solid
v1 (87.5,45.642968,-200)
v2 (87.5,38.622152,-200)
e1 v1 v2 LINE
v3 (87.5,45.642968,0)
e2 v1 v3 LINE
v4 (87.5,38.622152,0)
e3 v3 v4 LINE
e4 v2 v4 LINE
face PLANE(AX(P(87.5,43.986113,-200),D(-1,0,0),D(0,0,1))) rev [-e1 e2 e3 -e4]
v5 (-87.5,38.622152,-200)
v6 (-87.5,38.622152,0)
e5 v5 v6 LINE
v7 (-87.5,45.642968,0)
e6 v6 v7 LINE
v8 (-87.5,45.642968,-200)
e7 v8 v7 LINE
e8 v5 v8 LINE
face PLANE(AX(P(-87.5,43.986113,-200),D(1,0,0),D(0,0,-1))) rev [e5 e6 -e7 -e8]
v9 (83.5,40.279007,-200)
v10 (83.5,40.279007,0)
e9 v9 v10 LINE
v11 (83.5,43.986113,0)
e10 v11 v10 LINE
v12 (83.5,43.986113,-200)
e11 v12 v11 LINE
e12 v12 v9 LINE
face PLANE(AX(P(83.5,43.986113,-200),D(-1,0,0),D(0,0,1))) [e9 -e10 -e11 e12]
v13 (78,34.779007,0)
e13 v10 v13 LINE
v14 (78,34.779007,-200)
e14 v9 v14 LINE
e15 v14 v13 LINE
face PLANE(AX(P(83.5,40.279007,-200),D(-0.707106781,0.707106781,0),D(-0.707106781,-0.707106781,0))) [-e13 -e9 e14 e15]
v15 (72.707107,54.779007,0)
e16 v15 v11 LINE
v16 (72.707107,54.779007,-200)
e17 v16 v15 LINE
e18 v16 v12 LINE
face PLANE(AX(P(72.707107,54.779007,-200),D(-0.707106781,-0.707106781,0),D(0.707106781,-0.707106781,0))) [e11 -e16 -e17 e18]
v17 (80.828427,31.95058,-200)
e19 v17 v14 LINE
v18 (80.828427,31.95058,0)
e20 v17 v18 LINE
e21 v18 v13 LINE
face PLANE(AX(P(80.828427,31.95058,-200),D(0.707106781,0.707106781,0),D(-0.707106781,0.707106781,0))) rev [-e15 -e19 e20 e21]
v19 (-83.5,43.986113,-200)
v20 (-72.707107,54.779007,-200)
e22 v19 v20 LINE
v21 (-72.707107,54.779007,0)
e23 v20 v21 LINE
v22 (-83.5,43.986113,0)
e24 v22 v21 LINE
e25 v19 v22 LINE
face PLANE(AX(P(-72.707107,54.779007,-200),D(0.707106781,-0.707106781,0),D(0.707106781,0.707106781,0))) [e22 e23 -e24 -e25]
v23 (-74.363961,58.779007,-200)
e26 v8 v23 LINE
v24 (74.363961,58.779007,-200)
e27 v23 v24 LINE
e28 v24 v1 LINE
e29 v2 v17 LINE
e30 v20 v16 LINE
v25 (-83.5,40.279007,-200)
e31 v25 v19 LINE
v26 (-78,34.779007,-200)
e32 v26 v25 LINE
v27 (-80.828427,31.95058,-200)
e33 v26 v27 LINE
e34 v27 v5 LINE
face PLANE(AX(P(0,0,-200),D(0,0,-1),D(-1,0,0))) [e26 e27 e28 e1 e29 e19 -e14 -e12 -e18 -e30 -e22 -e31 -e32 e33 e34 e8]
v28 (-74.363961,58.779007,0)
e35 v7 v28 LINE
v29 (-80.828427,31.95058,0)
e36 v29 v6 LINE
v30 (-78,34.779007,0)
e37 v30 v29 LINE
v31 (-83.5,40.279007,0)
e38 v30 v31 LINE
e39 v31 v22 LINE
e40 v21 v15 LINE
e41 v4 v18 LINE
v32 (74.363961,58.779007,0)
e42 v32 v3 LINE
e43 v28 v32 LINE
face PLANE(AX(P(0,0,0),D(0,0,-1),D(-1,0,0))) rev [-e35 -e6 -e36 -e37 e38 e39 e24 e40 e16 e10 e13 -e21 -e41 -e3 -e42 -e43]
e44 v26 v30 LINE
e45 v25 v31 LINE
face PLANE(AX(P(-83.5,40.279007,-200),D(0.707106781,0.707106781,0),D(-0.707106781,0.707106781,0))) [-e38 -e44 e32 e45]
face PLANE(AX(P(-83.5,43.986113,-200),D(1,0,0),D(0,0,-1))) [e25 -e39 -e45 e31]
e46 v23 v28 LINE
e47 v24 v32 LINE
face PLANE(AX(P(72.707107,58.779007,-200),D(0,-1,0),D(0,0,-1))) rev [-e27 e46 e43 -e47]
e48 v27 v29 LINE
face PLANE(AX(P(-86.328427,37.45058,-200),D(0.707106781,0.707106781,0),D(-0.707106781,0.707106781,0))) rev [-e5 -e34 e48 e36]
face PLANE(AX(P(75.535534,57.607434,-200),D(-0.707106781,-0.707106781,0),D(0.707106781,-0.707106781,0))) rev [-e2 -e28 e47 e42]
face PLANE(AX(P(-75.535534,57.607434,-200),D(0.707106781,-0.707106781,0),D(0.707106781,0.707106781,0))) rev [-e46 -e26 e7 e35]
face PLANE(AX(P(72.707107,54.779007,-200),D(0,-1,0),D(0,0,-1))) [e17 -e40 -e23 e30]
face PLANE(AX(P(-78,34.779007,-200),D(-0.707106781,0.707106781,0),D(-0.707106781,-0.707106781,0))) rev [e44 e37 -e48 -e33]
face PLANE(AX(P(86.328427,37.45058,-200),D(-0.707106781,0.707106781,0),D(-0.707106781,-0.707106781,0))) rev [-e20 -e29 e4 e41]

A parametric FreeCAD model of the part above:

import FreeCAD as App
import Part
import Sketcher
from FreeCAD import Vector
Q = App.Units.Quantity

doc = App.newDocument("Part")
params = doc.addObject("Spreadsheet::Sheet", "Params")
for row, (alias, value) in enumerate([
    ("sketch1_length", "4 mm"),
    ("pad1_length", "200 mm"),
], start=1):
    params.set(f"A{row}", alias)
    params.set(f"B{row}", "=" + value)
    params.setAlias(f"B{row}", alias)

body = doc.addObject("PartDesign::Body", "Body")

sketch1 = body.newObject("Sketcher::SketchObject", "Sketch")
sketch1.AttachmentSupport = (doc.getObject("XY_Plane"), [""])
sketch1.MapMode = "FlatFace"
sketch1.addGeometry(Part.LineSegment(Vector(-78, 34.8, 0), Vector(-83.5, 40.3, 0)), False)
sketch1.addGeometry(Part.LineSegment(Vector(-83.5, 40.3, 0), Vector(-83.5, 44, 0)), False)
sketch1.addGeometry(Part.LineSegment(Vector(-83.5, 44, 0), Vector(-72.7, 54.8, 0)), False)
sketch1.addGeometry(Part.LineSegment(Vector(-72.7, 54.8, 0), Vector(72.7, 54.8, 0)), False)
sketch1.addGeometry(Part.LineSegment(Vector(72.7, 54.8, 0), Vector(83.5, 44, 0)), False)
sketch1.addGeometry(Part.LineSegment(Vector(83.5, 44, 0), Vector(83.5, 40.3, 0)), False)
sketch1.addGeometry(Part.LineSegment(Vector(83.5, 40.3, 0), Vector(78, 34.8, 0)), False)
sketch1.addGeometry(Part.LineSegment(Vector(78, 34.8, 0), Vector(80.8, 32, 0)), False)
sketch1.addGeometry(Part.LineSegment(Vector(80.8, 32, 0), Vector(87.5, 38.6, 0)), False)
sketch1.addGeometry(Part.LineSegment(Vector(87.5, 38.6, 0), Vector(87.5, 45.6, 0)), False)
sketch1.addGeometry(Part.LineSegment(Vector(87.5, 45.6, 0), Vector(74.4, 58.8, 0)), False)
sketch1.addGeometry(Part.LineSegment(Vector(74.4, 58.8, 0), Vector(-74.4, 58.8, 0)), False)
sketch1.addGeometry(Part.LineSegment(Vector(-74.4, 58.8, 0), Vector(-87.5, 45.6, 0)), False)
sketch1.addGeometry(Part.LineSegment(Vector(-87.5, 45.6, 0), Vector(-87.5, 38.6, 0)), False)
sketch1.addGeometry(Part.LineSegment(Vector(-87.5, 38.6, 0), Vector(-80.8, 32, 0)), False)
sketch1.addGeometry(Part.LineSegment(Vector(-80.8, 32, 0), Vector(-78, 34.8, 0)), False)
sketch1.addConstraint(Sketcher.Constraint("Coincident", 0, 2, 1, 1))
sketch1.addConstraint(Sketcher.Constraint("Coincident", 1, 2, 2, 1))
sketch1.addConstraint(Sketcher.Constraint("Coincident", 2, 2, 3, 1))
sketch1.addConstraint(Sketcher.Constraint("Coincident", 3, 2, 4, 1))
sketch1.addConstraint(Sketcher.Constraint("Coincident", 4, 2, 5, 1))
sketch1.addConstraint(Sketcher.Constraint("Coincident", 5, 2, 6, 1))
sketch1.addConstraint(Sketcher.Constraint("Coincident", 6, 2, 7, 1))
sketch1.addConstraint(Sketcher.Constraint("Coincident", 7, 2, 8, 1))
sketch1.addConstraint(Sketcher.Constraint("Coincident", 8, 2, 9, 1))
sketch1.addConstraint(Sketcher.Constraint("Coincident", 9, 2, 10, 1))
sketch1.addConstraint(Sketcher.Constraint("Coincident", 10, 2, 11, 1))
sketch1.addConstraint(Sketcher.Constraint("Coincident", 11, 2, 12, 1))
sketch1.addConstraint(Sketcher.Constraint("Coincident", 12, 2, 13, 1))
sketch1.addConstraint(Sketcher.Constraint("Coincident", 13, 2, 14, 1))
sketch1.addConstraint(Sketcher.Constraint("Coincident", 14, 2, 15, 1))
sketch1.addConstraint(Sketcher.Constraint("Coincident", 15, 2, 0, 1))
sketch1.addConstraint(Sketcher.Constraint("Vertical", 1))
sketch1.addConstraint(Sketcher.Constraint("Horizontal", 3))
sketch1.addConstraint(Sketcher.Constraint("Vertical", 5))
sketch1.addConstraint(Sketcher.Constraint("Vertical", 9))
sketch1.addConstraint(Sketcher.Constraint("Horizontal", 11))
sketch1.addConstraint(Sketcher.Constraint("Vertical", 13))
sketch1.addConstraint(Sketcher.Constraint("Symmetric", 1, 2, 4, 2, -2))
sketch1.addConstraint(Sketcher.Constraint("Symmetric", 9, 2, 12, 2, -2))
sketch1.addConstraint(Sketcher.Constraint("Symmetric", 7, 2, 14, 2, -2))
sketch1.addConstraint(Sketcher.Constraint("Symmetric", 6, 2, 15, 2, -2))
sketch1.addConstraint(Sketcher.Constraint("Perpendicular", 0, 2))
sketch1.addConstraint(Sketcher.Constraint("Perpendicular", 2, 4))
sketch1.addConstraint(Sketcher.Constraint("Perpendicular", 4, 6))
sketch1.addConstraint(Sketcher.Constraint("Perpendicular", 6, 7))
sketch1.addConstraint(Sketcher.Constraint("Perpendicular", 7, 8))
sketch1.addConstraint(Sketcher.Constraint("Perpendicular", 8, 10))
sketch1.addConstraint(Sketcher.Constraint("Perpendicular", 10, 12))
sketch1.addConstraint(Sketcher.Constraint("Perpendicular", 12, 14))
sketch1.addConstraint(Sketcher.Constraint("Perpendicular", 14, 15))
sketch1.addConstraint(Sketcher.Constraint("Distance", 7, Q("4 mm")))
sketch1.addConstraint(Sketcher.Constraint("DistanceX", -1, 1, 6, 2, Q("78 mm")))
sketch1.addConstraint(Sketcher.Constraint("DistanceX", 1, 2, 4, 2, Q("167 mm")))
sketch1.addConstraint(Sketcher.Constraint("DistanceY", 6, 2, 3, 2, Q("20 mm")))
sketch1.addConstraint(Sketcher.Constraint("DistanceX", 5, 2, 8, 2, Q("4 mm")))
sketch1.addConstraint(Sketcher.Constraint("DistanceY", 3, 2, 10, 2, Q("4 mm")))
sketch1.addConstraint(Sketcher.Constraint("DistanceX", 3, 1, 3, 2, Q("145.414214 mm")))
sketch1.addConstraint(Sketcher.Constraint("DistanceX", 11, 2, 11, 1, Q("148.727922 mm")))
sketch1.addConstraint(Sketcher.Constraint("DistanceY", -1, 1, 7, 2, Q("31.95058 mm")))
sketch1.setExpression("Constraints[35]", "Params.sketch1_length")
pad1 = body.newObject("PartDesign::Pad", "Pad")
pad1.Profile = sketch1
pad1.setExpression("Length", "Params.pad1_length")
pad1.Reversed = True

doc.recompute()
